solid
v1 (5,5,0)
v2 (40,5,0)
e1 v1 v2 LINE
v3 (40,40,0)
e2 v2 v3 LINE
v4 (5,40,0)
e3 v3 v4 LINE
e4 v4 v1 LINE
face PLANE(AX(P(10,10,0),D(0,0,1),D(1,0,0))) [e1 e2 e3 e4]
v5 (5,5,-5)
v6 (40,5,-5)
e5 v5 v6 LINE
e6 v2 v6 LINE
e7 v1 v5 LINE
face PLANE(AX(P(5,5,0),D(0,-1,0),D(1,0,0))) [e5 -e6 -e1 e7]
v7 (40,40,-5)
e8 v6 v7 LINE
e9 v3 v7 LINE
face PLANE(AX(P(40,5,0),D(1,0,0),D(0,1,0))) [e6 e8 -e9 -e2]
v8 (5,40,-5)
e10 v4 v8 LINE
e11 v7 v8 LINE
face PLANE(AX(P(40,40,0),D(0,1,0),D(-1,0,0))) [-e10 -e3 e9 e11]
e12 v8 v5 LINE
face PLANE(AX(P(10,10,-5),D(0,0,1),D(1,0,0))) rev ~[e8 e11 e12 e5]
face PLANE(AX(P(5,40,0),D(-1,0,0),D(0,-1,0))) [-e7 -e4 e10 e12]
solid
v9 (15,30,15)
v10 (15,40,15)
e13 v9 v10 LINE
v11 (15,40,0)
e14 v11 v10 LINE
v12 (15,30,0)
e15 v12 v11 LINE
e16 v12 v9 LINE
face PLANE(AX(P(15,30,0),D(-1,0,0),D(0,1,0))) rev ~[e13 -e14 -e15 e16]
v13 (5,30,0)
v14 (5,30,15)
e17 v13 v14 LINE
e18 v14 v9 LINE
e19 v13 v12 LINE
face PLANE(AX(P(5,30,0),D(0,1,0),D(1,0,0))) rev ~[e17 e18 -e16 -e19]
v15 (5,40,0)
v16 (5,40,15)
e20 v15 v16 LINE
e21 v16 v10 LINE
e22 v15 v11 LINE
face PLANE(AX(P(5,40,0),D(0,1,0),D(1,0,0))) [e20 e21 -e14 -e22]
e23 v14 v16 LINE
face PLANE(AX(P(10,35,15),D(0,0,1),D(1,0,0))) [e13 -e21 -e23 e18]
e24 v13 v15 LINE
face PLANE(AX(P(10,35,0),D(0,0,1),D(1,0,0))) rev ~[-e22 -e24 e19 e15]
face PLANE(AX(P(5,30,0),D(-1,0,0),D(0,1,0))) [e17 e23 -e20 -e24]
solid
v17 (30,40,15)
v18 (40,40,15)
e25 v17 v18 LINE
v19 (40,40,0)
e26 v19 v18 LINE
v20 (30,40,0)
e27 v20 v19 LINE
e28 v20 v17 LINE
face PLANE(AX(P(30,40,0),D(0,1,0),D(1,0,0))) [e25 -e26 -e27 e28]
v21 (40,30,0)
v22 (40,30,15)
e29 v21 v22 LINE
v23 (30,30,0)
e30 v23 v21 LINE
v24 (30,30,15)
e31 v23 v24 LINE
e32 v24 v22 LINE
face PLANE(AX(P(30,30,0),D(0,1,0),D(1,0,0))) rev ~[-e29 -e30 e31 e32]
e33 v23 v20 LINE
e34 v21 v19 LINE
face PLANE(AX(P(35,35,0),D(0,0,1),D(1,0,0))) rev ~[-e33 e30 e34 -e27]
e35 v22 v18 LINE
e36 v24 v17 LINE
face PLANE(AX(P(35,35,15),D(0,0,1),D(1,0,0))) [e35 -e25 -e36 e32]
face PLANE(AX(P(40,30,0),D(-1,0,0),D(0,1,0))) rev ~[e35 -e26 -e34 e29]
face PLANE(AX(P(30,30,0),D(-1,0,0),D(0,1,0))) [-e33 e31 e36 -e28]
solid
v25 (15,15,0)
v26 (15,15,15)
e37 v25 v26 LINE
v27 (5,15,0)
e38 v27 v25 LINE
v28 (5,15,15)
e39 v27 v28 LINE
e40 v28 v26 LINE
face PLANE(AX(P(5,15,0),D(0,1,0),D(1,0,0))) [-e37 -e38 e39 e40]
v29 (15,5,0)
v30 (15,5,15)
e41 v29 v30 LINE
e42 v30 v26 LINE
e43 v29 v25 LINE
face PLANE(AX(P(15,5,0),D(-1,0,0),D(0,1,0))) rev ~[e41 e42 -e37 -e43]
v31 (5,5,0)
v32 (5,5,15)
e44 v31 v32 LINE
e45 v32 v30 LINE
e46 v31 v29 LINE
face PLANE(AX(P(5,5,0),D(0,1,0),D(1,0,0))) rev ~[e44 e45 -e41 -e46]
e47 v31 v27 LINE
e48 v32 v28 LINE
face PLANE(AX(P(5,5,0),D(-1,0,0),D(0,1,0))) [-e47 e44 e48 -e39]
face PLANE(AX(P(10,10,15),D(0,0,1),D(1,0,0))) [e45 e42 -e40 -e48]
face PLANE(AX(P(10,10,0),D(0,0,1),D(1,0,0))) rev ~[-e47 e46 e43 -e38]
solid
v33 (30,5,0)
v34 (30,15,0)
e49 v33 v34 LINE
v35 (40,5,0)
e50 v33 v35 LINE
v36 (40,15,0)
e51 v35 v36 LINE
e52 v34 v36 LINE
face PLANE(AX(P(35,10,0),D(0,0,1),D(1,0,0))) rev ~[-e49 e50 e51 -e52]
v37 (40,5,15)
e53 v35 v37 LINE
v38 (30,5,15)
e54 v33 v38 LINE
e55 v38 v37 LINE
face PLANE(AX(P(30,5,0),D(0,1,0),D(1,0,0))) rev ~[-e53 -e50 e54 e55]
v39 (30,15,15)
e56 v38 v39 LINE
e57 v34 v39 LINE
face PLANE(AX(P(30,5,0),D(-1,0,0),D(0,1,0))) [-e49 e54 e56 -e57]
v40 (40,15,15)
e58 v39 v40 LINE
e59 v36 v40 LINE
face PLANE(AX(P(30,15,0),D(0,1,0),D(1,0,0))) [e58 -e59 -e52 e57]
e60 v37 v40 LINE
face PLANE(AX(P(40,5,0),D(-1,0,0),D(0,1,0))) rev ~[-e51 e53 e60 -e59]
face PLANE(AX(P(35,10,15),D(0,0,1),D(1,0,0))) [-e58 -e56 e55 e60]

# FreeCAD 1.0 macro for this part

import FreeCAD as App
import Part
import Sketcher
from FreeCAD import Vector
Q = App.Units.Quantity


def add_polygon(sketch, points):
    """Adds a closed chain of lines whose ends are joined by coincident constraints."""
    first, n = sketch.GeometryCount, len(points)
    for a, b in zip(points, points[1:] + points[:1]):
        sketch.addGeometry(Part.LineSegment(App.Vector(*a, 0), App.Vector(*b, 0)), False)
    for i in range(n):
        sketch.addConstraint(Sketcher.Constraint("Coincident", first + i, 2, first + (i + 1) % n, 1))

doc = App.newDocument("Part")
params = doc.addObject("Spreadsheet::Sheet", "Params")
for row, (alias, value) in enumerate([
    ("sketch1_width", "10 mm"),
    ("pad1_length", "15 mm"),
    ("sketch2_width", "35 mm"),
    ("pad2_length", "5 mm"),
], start=1):
    params.set(f"A{row}", alias)
    params.set(f"B{row}", "=" + value)
    params.setAlias(f"B{row}", alias)

body = doc.addObject("PartDesign::Body", "Body")
body.AllowCompound = True

sketch1 = body.newObject("Sketcher::SketchObject", "Sketch")
sketch1.AttachmentSupport = (doc.getObject("XY_Plane"), [""])
sketch1.MapMode = "FlatFace"
add_polygon(sketch1, [(30, 15), (30, 5), (40, 5), (40, 15)])
add_polygon(sketch1, [(5, 15), (5, 5), (15, 5), (15, 15)])
add_polygon(sketch1, [(5, 40), (5, 30), (15, 30), (15, 40)])
add_polygon(sketch1, [(30, 40), (30, 30), (40, 30), (40, 40)])
sketch1.addConstraint([
    Sketcher.Constraint("Vertical", 0),
    Sketcher.Constraint("Horizontal", 1),
    Sketcher.Constraint("Vertical", 2),
    Sketcher.Constraint("Horizontal", 3),
    Sketcher.Constraint("Vertical", 4),
    Sketcher.Constraint("Horizontal", 5),
    Sketcher.Constraint("Vertical", 6),
    Sketcher.Constraint("Horizontal", 7),
    Sketcher.Constraint("Vertical", 8),
    Sketcher.Constraint("Horizontal", 9),
    Sketcher.Constraint("Vertical", 10),
    Sketcher.Constraint("Horizontal", 11),
    Sketcher.Constraint("Vertical", 12),
    Sketcher.Constraint("Horizontal", 13),
    Sketcher.Constraint("Vertical", 14),
    Sketcher.Constraint("Horizontal", 15),
    Sketcher.Constraint("Horizontal", 1, 2, 4, 2),
    Sketcher.Constraint("Horizontal", 3, 2, 6, 2),
    Sketcher.Constraint("Horizontal", 9, 2, 12, 2),
    Sketcher.Constraint("Horizontal", 11, 2, 14, 2),
    Sketcher.Constraint("Vertical", 7, 2, 8, 2),
    Sketcher.Constraint("Vertical", 6, 2, 9, 2),
    Sketcher.Constraint("Vertical", 3, 2, 12, 2),
    Sketcher.Constraint("Vertical", 2, 2, 13, 2),
    Sketcher.Constraint("Equal", 3, 5),
    Sketcher.Constraint("Equal", 15, 0),
    Sketcher.Constraint("Equal", 6, 8),
    Sketcher.Constraint("DistanceX", 1, 1, 1, 2, Q("10 mm")),
    Sketcher.Constraint("DistanceX", -1, 1, 0, 2, Q("30 mm")),
    Sketcher.Constraint("DistanceY", -1, 1, 0, 2, Q("5 mm")),
    Sketcher.Constraint("DistanceX", -1, 1, 4, 2, Q("5 mm")),
    Sketcher.Constraint("DistanceY", -1, 1, 8, 2, Q("30 mm")),
])
sketch1.setExpression("Constraints[43]", "Params.sketch1_width")
pad1 = body.newObject("PartDesign::Pad", "Pad")
pad1.Profile = sketch1
pad1.setExpression("Length", "Params.pad1_length")
body2 = doc.addObject("PartDesign::Body", "Body001")

sketch2 = body2.newObject("Sketcher::SketchObject", "Sketch001")
sketch2.AttachmentSupport = (doc.getObject("XY_Plane001"), [""])
sketch2.MapMode = "FlatFace"
add_polygon(sketch2, [(5, 5), (40, 5), (40, 40), (5, 40)])
sketch2.addConstraint([
    Sketcher.Constraint("Horizontal", 0),
    Sketcher.Constraint("Vertical", 1),
    Sketcher.Constraint("Horizontal", 2),
    Sketcher.Constraint("Vertical", 3),
    Sketcher.Constraint("Equal", 2, 1),
    Sketcher.Constraint("DistanceX", 0, 1, 0, 2, Q("35 mm")),
    Sketcher.Constraint("DistanceX", -1, 1, 0, 2, Q("40 mm")),
    Sketcher.Constraint("DistanceY", -1, 1, 0, 2, Q("5 mm")),
])
sketch2.setExpression("Constraints[9]", "Params.sketch2_width")
pad2 = body2.newObject("PartDesign::Pad", "Pad001")
pad2.Profile = sketch2
pad2.setExpression("Length", "Params.pad2_length")
pad2.Reversed = True

doc.recompute()
